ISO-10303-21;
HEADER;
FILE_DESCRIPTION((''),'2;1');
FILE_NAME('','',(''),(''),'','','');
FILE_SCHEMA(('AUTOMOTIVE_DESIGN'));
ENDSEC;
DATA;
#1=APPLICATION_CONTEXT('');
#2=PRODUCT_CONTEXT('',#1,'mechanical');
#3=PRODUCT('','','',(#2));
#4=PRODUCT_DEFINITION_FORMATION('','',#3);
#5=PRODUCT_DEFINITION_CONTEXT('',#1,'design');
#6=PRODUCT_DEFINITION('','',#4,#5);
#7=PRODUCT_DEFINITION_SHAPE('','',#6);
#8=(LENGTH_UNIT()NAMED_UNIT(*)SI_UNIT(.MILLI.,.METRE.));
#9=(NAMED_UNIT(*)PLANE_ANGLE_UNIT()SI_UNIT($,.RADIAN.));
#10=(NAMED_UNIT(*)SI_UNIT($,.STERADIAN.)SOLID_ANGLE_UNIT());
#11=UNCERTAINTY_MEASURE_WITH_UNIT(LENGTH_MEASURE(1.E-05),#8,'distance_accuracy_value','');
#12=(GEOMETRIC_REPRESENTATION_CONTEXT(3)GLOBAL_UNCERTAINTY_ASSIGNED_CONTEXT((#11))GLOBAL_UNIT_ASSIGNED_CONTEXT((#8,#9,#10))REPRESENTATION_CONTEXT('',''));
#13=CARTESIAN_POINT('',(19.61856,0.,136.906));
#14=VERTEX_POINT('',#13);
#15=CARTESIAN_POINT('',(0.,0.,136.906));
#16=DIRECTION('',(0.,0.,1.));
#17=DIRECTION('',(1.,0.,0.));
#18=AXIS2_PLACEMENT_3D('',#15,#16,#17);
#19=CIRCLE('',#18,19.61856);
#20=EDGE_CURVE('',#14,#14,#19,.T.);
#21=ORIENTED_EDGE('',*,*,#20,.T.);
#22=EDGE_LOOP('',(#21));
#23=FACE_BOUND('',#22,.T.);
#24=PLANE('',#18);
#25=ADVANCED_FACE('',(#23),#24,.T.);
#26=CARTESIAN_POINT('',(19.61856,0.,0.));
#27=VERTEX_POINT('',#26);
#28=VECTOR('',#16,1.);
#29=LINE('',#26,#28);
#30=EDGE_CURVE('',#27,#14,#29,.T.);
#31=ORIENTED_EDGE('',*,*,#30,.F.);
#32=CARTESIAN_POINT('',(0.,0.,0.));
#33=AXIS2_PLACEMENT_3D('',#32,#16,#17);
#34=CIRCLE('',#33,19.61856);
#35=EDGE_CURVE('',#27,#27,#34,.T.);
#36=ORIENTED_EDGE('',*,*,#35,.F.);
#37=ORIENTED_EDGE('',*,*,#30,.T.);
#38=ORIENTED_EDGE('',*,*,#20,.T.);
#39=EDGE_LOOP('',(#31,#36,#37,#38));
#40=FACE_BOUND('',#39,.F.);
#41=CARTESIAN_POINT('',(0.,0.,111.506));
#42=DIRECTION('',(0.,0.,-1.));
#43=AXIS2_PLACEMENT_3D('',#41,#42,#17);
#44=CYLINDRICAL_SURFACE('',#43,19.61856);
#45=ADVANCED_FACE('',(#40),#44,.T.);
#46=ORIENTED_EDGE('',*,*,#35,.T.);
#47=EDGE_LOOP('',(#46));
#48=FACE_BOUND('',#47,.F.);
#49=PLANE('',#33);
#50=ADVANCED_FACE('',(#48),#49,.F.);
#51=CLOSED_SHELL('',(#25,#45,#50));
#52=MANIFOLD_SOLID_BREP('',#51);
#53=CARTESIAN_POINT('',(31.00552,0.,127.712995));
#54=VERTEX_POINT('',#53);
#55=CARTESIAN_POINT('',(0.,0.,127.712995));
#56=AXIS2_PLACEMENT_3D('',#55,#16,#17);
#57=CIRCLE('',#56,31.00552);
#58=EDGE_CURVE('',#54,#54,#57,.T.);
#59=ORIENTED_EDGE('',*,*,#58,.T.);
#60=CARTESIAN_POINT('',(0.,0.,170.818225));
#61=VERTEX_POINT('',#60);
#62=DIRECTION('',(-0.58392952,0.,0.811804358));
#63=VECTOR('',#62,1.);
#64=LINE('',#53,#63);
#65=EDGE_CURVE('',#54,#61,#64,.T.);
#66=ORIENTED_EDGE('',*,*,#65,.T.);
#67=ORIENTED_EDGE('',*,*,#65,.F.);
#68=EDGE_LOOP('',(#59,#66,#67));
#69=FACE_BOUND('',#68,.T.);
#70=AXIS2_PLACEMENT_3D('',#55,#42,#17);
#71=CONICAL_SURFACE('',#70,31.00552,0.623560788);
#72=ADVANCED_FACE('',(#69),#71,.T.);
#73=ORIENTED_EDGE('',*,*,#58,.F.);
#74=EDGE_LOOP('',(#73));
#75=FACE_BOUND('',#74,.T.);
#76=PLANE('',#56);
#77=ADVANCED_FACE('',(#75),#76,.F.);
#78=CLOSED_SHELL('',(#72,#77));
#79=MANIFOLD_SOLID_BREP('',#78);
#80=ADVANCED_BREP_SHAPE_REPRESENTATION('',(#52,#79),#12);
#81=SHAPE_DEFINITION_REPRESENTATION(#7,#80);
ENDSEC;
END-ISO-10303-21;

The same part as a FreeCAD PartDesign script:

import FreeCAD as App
import Part
import Sketcher

V = App.Vector
Q = App.Units.Quantity


def add_polygon(sketch, points):
    """Adds a closed chain of lines whose ends are joined by coincident constraints."""
    first, n = sketch.GeometryCount, len(points)
    for a, b in zip(points, points[1:] + points[:1]):
        sketch.addGeometry(Part.LineSegment(App.Vector(*a, 0), App.Vector(*b, 0)), False)
    for i in range(n):
        sketch.addConstraint(Sketcher.Constraint("Coincident", first + i, 2, first + (i + 1) % n, 1))

doc = App.newDocument("Part")
body = doc.addObject("PartDesign::Body", "Body")

# Sketch on XY plane
sketch1 = body.newObject("Sketcher::SketchObject", "Sketch")
sketch1.AttachmentSupport = (doc.getObject("XY_Plane"), [""])
sketch1.MapMode = "FlatFace"
sketch1.addGeometry(Part.Circle(V(0, 0, 0), V(0, 0, 1), 20), False)
sketch1.addConstraint(Sketcher.Constraint("Coincident", 0, 3, -1, 1))
sketch1.addConstraint(Sketcher.Constraint("Diameter", 0, Q("39.23712 mm")))
pad1 = body.newObject("PartDesign::Pad", "Pad")
pad1.Profile = sketch1
pad1.Length = Q("4.39 in")

# Sketch on XY plane
sketch2 = body.newObject("Sketcher::SketchObject", "Sketch001")
sketch2.AttachmentSupport = (doc.getObject("XY_Plane"), [""])
sketch2.MapMode = "FlatFace"
sketch2.AttachmentOffset = App.Placement(V(0, 0, 4.39 * 25.4), App.Rotation())
sketch2.addGeometry(Part.Circle(V(0, 0, 0), V(0, 0, 1), 20), False)
sketch2.addConstraint(Sketcher.Constraint("Coincident", 0, 3, -1, 1))
sketch2.addConstraint(Sketcher.Constraint("Diameter", 0, Q("39.23712 mm")))
pad2 = body.newObject("PartDesign::Pad", "Pad001")
pad2.Profile = sketch2
pad2.Length = Q("1 in")
body2 = doc.addObject("PartDesign::Body", "Body001")

# Sketch on XZ plane
sketch3 = body2.newObject("Sketcher::SketchObject", "Sketch002")
sketch3.AttachmentSupport = (doc.getObject("XZ_Plane001"), [""])
sketch3.MapMode = "FlatFace"
add_polygon(sketch3, [(0, 171), (0, 128), (31, 128)])  # lines 0-2
sketch3.addConstraint(Sketcher.Constraint("Vertical", 0))
sketch3.addConstraint(Sketcher.Constraint("Horizontal", 1))
sketch3.addConstraint(Sketcher.Constraint("PointOnObject", 0, 2, -2))
sketch3.addConstraint(Sketcher.Constraint("DistanceX", 1, 1, 1, 2, Q("31.00552 mm")))
sketch3.addConstraint(Sketcher.Constraint("DistanceY", 0, 2, 0, 1, Q("43.10523 mm")))
sketch3.addConstraint(Sketcher.Constraint("DistanceY", -1, 1, 0, 2, Q("127.712995 mm")))
revolution = body2.newObject("PartDesign::Revolution", "Revolution")
revolution.Profile = sketch3
revolution.ReferenceAxis = (sketch3, ["V_Axis"])
revolution.Angle = 360

doc.recompute()
